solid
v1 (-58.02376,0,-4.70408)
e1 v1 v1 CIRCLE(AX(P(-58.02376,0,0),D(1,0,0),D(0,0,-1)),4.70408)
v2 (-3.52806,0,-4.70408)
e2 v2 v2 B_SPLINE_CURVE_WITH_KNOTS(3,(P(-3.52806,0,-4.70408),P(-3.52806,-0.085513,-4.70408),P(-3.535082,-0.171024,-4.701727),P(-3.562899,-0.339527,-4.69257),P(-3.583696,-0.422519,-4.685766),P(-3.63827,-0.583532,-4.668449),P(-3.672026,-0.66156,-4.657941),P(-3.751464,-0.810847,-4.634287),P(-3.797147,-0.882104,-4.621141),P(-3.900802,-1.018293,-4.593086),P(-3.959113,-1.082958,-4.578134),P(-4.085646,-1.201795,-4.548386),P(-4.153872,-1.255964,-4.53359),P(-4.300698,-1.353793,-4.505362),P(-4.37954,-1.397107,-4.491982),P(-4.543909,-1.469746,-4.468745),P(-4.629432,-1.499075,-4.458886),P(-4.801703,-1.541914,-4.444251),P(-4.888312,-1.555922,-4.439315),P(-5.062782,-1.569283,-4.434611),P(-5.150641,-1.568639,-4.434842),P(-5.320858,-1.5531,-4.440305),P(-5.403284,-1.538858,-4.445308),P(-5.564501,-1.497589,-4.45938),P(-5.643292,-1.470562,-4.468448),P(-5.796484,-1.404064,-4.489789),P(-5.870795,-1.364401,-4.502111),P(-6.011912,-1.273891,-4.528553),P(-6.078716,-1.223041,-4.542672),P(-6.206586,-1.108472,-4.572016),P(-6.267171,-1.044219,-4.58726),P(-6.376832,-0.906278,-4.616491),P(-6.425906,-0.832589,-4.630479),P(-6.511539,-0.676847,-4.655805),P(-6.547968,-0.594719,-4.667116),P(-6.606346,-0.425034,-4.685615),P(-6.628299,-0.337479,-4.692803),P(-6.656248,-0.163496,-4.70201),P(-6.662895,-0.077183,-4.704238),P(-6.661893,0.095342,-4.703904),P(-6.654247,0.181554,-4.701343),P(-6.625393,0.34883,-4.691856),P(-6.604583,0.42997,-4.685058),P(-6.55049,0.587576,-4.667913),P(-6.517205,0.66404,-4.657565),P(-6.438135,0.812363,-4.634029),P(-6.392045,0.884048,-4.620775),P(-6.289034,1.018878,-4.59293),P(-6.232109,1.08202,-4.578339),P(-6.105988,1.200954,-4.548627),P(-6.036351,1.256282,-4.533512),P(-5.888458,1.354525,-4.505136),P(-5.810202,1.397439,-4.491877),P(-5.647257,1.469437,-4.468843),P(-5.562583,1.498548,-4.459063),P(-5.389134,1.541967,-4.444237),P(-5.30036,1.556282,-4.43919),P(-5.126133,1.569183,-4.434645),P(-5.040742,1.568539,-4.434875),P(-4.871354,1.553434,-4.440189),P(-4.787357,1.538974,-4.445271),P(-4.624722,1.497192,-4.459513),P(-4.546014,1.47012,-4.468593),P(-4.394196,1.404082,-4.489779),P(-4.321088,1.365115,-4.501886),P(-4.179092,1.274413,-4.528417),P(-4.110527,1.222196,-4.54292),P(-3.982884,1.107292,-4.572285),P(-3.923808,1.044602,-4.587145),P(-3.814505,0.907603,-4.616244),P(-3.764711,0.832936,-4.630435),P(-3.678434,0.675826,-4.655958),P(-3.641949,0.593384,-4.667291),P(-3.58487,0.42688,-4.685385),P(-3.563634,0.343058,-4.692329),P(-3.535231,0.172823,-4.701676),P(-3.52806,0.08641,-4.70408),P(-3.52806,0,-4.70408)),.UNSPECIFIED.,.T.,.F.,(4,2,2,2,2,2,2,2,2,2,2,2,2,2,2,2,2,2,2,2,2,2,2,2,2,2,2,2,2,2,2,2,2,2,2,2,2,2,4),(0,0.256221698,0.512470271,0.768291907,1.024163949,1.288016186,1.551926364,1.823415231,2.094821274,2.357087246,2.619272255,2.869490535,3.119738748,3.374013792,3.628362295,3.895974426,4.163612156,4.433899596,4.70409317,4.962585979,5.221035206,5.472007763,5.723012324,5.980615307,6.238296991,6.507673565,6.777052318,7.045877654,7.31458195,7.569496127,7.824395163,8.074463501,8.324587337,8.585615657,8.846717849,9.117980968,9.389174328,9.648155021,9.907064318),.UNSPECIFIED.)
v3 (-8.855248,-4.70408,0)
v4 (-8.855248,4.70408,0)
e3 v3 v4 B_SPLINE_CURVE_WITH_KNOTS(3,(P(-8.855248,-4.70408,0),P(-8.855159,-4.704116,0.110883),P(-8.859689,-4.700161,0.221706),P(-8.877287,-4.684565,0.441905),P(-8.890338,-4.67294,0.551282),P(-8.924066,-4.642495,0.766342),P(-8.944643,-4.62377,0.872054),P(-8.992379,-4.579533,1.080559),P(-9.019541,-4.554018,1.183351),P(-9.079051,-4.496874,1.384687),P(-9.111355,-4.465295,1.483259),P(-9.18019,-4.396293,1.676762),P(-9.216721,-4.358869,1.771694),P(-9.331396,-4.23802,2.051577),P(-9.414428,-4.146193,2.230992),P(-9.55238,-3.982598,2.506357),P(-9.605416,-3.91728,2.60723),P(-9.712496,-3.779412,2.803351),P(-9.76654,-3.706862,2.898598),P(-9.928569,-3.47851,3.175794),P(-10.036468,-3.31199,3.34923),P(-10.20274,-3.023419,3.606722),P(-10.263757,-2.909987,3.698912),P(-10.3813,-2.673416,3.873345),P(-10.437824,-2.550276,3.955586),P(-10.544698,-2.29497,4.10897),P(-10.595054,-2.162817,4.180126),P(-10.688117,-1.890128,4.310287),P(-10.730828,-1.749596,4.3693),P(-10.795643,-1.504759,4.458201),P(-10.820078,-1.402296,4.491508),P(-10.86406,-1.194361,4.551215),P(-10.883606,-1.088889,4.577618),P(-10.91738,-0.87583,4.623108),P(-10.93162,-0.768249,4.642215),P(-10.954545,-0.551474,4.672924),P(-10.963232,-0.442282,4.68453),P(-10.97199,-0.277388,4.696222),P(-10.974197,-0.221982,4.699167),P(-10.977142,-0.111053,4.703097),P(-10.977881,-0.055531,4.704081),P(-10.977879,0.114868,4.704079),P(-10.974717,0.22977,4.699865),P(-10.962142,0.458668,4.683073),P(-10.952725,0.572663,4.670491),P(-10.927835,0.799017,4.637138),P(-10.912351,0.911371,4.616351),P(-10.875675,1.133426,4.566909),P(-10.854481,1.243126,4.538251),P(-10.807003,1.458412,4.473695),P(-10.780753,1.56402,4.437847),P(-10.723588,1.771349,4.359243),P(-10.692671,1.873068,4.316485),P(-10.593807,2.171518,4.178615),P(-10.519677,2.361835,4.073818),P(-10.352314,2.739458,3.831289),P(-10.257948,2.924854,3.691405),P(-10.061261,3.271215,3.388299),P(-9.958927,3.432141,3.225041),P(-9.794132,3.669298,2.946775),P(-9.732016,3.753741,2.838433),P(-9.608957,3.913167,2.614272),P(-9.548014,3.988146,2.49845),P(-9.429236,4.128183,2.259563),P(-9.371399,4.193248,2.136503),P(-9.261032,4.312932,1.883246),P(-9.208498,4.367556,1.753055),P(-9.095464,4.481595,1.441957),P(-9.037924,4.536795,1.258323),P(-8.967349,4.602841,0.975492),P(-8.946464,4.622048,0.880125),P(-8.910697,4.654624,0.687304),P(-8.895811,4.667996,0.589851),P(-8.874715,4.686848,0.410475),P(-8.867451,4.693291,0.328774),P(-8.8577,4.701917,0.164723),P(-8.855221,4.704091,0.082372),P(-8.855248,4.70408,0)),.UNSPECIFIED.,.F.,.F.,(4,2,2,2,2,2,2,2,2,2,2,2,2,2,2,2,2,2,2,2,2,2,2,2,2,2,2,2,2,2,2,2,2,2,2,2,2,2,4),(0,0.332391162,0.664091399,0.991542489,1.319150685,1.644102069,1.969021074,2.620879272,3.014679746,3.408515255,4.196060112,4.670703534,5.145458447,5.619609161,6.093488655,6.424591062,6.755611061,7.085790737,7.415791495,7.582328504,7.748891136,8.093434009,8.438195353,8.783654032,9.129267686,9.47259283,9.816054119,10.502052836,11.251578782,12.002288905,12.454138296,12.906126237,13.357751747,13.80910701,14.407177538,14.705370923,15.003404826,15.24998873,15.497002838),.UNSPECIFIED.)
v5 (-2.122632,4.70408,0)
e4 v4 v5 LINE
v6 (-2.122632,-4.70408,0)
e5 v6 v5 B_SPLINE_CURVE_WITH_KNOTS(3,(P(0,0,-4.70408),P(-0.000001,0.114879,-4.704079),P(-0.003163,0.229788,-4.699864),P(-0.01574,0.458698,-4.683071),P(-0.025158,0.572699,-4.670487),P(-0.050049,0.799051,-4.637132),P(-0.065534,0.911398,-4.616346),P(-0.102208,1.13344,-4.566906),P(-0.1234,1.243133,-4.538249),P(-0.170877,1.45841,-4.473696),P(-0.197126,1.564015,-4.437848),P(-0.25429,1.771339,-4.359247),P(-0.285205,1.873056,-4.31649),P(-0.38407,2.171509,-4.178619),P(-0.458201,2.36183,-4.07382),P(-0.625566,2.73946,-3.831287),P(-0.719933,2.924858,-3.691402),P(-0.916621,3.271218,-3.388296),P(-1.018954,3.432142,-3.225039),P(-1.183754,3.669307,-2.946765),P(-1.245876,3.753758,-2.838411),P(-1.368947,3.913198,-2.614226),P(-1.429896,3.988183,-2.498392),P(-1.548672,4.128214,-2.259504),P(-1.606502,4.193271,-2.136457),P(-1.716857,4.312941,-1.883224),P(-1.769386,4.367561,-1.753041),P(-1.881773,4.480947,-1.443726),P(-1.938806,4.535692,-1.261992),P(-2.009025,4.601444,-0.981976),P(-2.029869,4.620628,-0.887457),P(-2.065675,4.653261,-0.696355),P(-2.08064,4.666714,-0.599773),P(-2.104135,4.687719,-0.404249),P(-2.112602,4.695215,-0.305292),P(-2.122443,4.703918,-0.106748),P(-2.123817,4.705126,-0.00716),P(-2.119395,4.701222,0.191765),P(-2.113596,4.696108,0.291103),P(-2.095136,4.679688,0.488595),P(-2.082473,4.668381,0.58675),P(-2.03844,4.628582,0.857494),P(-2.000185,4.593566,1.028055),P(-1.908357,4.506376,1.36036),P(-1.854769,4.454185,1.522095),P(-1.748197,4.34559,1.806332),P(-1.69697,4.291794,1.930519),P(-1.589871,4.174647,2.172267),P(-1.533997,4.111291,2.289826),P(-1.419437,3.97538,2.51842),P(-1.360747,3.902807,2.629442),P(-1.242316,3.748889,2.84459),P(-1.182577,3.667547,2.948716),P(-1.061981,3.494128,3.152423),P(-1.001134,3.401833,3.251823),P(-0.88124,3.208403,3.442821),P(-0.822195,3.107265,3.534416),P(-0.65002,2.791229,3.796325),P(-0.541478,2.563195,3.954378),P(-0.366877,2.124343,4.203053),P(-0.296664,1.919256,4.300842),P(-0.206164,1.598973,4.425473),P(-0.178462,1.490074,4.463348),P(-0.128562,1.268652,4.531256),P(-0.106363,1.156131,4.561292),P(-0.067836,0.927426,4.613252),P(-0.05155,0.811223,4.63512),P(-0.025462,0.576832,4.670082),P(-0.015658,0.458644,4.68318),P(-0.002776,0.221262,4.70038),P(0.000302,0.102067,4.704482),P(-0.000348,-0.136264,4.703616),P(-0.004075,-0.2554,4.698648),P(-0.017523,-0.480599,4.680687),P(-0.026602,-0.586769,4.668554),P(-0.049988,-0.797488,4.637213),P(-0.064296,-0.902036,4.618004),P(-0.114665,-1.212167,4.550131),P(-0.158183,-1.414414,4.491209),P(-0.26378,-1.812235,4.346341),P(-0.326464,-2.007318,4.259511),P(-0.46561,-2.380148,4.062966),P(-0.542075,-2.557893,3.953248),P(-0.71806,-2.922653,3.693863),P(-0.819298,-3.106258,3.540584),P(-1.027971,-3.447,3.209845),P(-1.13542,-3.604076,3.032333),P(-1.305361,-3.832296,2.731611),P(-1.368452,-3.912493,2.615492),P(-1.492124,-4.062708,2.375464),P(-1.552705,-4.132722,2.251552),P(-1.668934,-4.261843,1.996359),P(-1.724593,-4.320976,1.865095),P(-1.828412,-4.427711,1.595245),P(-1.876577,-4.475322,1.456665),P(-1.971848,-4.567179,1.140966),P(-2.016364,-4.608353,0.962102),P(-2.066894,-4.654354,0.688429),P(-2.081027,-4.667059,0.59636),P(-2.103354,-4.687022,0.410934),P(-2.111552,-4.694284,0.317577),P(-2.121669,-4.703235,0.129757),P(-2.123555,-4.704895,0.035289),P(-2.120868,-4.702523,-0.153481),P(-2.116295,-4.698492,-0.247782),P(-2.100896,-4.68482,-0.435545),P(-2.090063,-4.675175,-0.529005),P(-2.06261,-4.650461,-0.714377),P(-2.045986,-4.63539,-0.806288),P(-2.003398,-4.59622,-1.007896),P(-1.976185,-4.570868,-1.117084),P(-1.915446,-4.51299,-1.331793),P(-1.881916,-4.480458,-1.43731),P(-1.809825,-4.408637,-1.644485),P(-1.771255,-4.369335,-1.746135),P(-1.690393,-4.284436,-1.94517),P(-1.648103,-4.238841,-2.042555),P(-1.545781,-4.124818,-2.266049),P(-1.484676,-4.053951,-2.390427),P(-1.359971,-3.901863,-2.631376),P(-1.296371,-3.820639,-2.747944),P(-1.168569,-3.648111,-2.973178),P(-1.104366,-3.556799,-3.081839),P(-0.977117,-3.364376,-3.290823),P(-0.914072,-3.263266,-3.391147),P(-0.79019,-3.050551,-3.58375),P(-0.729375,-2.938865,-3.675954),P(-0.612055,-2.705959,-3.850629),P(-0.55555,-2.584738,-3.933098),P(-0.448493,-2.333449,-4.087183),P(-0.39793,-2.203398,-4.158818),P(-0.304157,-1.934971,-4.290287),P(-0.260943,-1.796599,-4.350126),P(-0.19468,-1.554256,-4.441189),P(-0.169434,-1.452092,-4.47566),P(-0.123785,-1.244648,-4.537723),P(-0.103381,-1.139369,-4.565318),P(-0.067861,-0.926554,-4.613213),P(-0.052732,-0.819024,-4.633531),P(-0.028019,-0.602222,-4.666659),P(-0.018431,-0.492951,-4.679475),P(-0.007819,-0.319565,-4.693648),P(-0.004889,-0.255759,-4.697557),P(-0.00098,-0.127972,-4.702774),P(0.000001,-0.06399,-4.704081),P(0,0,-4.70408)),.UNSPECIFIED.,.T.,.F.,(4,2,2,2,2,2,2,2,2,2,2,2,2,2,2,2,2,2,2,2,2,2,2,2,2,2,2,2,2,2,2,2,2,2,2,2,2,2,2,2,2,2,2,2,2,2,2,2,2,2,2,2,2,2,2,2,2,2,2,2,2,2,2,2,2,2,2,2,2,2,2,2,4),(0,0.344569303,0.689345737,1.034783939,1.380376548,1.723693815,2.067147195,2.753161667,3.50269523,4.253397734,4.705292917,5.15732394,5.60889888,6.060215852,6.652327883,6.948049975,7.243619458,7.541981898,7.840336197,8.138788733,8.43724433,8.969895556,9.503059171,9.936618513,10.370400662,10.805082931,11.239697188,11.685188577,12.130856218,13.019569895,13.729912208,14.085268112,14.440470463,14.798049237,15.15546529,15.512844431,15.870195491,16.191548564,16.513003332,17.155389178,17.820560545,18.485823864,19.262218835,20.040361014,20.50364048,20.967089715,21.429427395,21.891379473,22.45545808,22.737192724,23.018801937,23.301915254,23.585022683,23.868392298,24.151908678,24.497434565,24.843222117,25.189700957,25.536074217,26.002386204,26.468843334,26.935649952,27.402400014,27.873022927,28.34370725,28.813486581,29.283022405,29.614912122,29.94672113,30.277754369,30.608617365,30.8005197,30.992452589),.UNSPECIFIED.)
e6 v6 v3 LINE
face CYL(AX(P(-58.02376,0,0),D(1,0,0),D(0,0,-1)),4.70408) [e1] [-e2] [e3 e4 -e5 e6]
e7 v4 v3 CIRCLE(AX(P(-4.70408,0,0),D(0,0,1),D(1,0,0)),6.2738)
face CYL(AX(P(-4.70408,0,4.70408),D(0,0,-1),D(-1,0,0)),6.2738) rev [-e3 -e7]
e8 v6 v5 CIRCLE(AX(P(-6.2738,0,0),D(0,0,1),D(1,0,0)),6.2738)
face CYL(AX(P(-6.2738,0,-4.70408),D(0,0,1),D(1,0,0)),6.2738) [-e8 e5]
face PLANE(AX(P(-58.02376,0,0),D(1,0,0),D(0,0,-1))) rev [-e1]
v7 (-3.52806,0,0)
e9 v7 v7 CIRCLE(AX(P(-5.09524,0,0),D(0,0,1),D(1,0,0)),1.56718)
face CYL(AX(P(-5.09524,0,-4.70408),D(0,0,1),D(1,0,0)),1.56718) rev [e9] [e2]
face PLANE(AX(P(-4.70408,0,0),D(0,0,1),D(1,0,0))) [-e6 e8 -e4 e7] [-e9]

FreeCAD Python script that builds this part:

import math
import FreeCAD as App
import Part
import Sketcher

V = App.Vector
Q = App.Units.Quantity

doc = App.newDocument("Part")
body = doc.addObject("PartDesign::Body", "Body")

# Sketch on YZ plane
sketch1 = body.newObject("Sketcher::SketchObject", "Sketch")
sketch1.AttachmentSupport = (doc.getObject("YZ_Plane"), [""])
sketch1.MapMode = "FlatFace"
sketch1.addGeometry(Part.Circle(V(0, 0, 0), V(0, 0, 1), 4.70408), False)
sketch1.addConstraint([
    Sketcher.Constraint("Coincident", 0, 3, -1, 1),
    Sketcher.Constraint("Diameter", 0, Q("0.3704 in")),
])
pad1 = body.newObject("PartDesign::Pad", "Pad")
pad1.Profile = sketch1
pad1.Length = Q("2.2844 in")
pad1.Reversed = True

# Sketch on XY plane
sketch2 = body.newObject("Sketcher::SketchObject", "Sketch001")
sketch2.AttachmentSupport = (doc.getObject("XY_Plane"), [""])
sketch2.MapMode = "FlatFace"
sketch2.addGeometry([
    Part.LineSegment(V(2.931021, 6.2738, 0), V(-6.2738, 6.2738, 0)),
    Part.ArcOfCircle(Part.Circle(V(-6.2738, 0, 0), V(0, 0, 1), 6.2738), math.radians(-90), math.radians(90)),
    Part.LineSegment(V(-6.2738, -6.2738, 0), V(2.931021, -6.2738, 0)),
    Part.LineSegment(V(2.931021, -6.2738, 0), V(2.931021, 6.2738, 0)),
], False)
sketch2.addConstraint([
    Sketcher.Constraint("Tangent", 0, 2, 1, 2),
    Sketcher.Constraint("Tangent", 1, 1, 2, 1),
    Sketcher.Constraint("Coincident", 2, 2, 3, 1),
    Sketcher.Constraint("Coincident", 3, 2, 0, 1),
    Sketcher.Constraint("Horizontal", 0),
    Sketcher.Constraint("Horizontal", 2),
    Sketcher.Constraint("Vertical", 3),
    Sketcher.Constraint("PointOnObject", 1, 3, -1),
    Sketcher.Constraint("Radius", 1, Q("0.247 in")),
    Sketcher.Constraint("DistanceX", 1, 3, -1, 1, Q("0.247 in")),
    Sketcher.Constraint("DistanceX", 0, 2, 0, 1, 9.204821),
])
pocket1 = body.newObject("PartDesign::Pocket", "Pocket")
pocket1.Profile = sketch2
pocket1.Type = "ThroughAll"
pocket1.Midplane = True

# Sketch on XY plane
sketch3 = body.newObject("Sketcher::SketchObject", "Sketch002")
sketch3.AttachmentSupport = (doc.getObject("XY_Plane"), [""])
sketch3.MapMode = "FlatFace"
sketch3.addGeometry(Part.Circle(V(-4.70408, 0, 0), V(0, 0, 1), 6.2738), False)
sketch3.addConstraint([
    Sketcher.Constraint("PointOnObject", 0, 3, -1),
    Sketcher.Constraint("Diameter", 0, Q("0.494 in")),
    Sketcher.Constraint("DistanceX", 0, 3, -1, 1, Q("0.1852 in")),
])
pocket2 = body.newObject("PartDesign::Pocket", "Pocket001")
pocket2.Profile = sketch3
pocket2.Type = "ThroughAll"
pocket2.Reversed = True

# Sketch on XY plane
sketch4 = body.newObject("Sketcher::SketchObject", "Sketch003")
sketch4.AttachmentSupport = (doc.getObject("XY_Plane"), [""])
sketch4.MapMode = "FlatFace"
sketch4.addGeometry(Part.Circle(V(-5.09524, 0, 0), V(0, 0, 1), 1.56718), False)
sketch4.addConstraint([
    Sketcher.Constraint("PointOnObject", 0, 3, -1),
    Sketcher.Constraint("Diameter", 0, Q("0.1234 in")),
    Sketcher.Constraint("DistanceX", 0, 3, -1, 1, Q("0.2006 in")),
])
pocket3 = body.newObject("PartDesign::Pocket", "Pocket002")
pocket3.Profile = sketch4
pocket3.Type = "ThroughAll"

doc.recompute()
